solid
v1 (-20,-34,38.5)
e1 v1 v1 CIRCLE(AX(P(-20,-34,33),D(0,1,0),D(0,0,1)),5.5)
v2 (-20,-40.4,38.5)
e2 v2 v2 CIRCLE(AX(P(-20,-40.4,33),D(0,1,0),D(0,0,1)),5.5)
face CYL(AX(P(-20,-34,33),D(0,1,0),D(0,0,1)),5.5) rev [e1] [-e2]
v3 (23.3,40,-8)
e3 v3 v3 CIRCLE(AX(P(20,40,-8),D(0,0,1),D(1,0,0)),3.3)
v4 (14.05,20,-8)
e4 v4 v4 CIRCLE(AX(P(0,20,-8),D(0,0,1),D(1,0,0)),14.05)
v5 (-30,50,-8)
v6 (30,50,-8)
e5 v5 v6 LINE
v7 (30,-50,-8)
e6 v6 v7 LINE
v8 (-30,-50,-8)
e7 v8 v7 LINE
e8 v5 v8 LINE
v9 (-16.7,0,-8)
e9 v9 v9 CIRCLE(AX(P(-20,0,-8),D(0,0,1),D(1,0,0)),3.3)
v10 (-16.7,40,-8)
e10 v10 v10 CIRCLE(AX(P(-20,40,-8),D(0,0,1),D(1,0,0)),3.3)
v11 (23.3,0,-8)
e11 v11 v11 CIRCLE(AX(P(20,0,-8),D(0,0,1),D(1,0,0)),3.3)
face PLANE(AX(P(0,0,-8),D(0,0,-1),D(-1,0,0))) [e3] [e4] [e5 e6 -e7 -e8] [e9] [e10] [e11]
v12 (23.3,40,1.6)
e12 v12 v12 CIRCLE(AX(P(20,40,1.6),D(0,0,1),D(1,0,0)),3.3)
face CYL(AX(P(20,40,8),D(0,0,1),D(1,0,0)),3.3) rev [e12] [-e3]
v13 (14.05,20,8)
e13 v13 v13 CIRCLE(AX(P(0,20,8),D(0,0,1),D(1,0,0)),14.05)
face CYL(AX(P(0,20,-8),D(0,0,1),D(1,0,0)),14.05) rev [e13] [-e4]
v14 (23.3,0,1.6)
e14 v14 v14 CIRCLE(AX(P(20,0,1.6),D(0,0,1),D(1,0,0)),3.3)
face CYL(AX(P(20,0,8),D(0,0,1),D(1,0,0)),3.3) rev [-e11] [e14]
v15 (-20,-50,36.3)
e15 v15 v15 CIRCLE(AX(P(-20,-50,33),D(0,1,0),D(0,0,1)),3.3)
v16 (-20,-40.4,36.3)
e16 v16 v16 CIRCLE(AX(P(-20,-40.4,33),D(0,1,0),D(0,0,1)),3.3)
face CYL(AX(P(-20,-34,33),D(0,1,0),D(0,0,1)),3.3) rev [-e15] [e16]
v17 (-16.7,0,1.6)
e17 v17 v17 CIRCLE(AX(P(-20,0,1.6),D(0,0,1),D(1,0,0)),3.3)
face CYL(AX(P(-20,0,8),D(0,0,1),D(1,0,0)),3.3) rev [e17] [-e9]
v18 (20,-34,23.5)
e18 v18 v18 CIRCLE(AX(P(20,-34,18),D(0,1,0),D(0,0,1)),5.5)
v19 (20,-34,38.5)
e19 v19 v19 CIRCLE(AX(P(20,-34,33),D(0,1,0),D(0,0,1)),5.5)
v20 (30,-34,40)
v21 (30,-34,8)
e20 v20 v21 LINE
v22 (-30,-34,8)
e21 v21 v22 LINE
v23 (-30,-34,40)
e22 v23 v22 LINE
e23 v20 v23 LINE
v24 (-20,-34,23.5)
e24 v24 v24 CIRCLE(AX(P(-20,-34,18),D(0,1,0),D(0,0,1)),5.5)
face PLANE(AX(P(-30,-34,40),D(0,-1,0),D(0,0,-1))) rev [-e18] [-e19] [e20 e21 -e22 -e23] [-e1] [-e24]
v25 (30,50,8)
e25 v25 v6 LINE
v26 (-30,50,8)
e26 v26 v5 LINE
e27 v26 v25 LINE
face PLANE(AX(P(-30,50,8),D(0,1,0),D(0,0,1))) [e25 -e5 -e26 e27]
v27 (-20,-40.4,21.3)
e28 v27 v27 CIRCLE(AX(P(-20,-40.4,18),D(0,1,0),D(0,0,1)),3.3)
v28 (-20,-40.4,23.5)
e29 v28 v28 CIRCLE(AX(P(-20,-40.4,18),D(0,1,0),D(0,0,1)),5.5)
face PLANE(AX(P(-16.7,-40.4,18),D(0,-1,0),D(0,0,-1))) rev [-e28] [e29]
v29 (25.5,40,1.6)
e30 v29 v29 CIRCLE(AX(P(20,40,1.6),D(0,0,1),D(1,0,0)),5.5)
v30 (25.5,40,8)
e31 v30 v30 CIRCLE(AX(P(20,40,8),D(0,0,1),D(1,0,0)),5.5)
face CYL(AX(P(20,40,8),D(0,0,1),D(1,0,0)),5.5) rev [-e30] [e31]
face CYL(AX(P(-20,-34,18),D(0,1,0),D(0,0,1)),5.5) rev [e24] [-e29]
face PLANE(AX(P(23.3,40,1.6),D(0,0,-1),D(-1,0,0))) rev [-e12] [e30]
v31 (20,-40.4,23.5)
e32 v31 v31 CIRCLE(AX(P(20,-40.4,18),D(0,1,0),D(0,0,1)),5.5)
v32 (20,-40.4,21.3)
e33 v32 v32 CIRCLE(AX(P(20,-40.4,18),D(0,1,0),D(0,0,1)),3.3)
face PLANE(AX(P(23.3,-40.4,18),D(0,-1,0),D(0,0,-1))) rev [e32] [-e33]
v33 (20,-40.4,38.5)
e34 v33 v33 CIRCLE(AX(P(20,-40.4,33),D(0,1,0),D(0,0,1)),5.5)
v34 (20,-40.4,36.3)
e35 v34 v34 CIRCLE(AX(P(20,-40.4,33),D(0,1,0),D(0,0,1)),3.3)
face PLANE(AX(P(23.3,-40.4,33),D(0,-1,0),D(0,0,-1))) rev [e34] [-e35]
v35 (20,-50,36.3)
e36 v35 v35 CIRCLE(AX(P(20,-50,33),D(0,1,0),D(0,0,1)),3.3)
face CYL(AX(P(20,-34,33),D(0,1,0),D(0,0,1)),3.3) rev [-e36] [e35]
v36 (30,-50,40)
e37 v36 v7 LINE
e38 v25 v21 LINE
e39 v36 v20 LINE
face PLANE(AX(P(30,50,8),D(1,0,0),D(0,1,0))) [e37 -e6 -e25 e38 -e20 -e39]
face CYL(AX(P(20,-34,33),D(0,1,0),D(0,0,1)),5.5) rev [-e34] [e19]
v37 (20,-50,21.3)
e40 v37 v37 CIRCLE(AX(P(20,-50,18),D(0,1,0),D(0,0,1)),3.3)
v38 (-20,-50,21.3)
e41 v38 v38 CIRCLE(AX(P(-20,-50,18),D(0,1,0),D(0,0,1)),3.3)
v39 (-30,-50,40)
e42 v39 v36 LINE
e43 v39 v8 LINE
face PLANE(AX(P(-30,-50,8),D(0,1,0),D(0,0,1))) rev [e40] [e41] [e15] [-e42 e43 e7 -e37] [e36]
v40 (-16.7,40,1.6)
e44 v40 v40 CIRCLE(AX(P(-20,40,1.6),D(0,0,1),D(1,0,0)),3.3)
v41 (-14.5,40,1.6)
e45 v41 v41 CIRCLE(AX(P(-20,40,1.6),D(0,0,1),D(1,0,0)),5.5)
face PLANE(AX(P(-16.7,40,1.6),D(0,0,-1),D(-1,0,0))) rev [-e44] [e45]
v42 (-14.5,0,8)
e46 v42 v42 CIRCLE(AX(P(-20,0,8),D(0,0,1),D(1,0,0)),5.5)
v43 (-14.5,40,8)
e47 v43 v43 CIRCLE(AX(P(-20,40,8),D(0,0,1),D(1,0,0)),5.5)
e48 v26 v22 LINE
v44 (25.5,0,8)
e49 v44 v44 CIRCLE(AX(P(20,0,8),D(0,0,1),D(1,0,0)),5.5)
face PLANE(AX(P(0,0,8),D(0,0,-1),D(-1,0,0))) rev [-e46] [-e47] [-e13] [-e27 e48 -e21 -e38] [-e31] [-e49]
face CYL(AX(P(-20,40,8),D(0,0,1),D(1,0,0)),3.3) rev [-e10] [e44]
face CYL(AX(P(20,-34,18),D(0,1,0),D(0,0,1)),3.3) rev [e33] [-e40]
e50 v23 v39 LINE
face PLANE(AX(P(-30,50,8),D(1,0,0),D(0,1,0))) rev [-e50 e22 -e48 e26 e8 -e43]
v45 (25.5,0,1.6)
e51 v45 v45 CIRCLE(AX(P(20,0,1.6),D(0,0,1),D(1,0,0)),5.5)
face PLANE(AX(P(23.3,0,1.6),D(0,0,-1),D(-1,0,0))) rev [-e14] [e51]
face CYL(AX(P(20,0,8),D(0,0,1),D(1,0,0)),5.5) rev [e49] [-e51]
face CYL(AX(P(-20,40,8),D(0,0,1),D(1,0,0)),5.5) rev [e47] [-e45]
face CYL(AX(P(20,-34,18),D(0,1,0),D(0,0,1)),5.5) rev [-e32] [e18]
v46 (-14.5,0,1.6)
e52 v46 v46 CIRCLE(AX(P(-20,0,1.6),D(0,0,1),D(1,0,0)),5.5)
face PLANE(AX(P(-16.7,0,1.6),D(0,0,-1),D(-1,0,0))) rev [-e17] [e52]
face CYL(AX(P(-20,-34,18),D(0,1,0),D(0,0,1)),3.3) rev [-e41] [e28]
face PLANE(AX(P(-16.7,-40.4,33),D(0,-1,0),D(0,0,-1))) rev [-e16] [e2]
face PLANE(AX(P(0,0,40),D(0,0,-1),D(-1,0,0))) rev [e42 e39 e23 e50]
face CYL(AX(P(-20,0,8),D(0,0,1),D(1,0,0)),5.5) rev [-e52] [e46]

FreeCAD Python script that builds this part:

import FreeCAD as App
import Part
import Sketcher


def add_polygon(sketch, points):
    """Adds a closed chain of lines whose ends are joined by coincident constraints."""
    first, n = sketch.GeometryCount, len(points)
    for a, b in zip(points, points[1:] + points[:1]):
        sketch.addGeometry(Part.LineSegment(App.Vector(*a, 0), App.Vector(*b, 0)), False)
    for i in range(n):
        sketch.addConstraint(Sketcher.Constraint("Coincident", first + i, 2, first + (i + 1) % n, 1))

doc = App.newDocument("Part")
body = doc.addObject("PartDesign::Body", "Body")

# Sketch on XY plane
sketch1 = body.newObject("Sketcher::SketchObject", "Sketch")
sketch1.AttachmentSupport = (doc.getObject("XY_Plane"), [""])
sketch1.MapMode = "FlatFace"
add_polygon(sketch1, [(-30, 50), (-30, -50), (30, -50), (30, 50)])  # lines 0-3
sketch1.addConstraint([
    Sketcher.Constraint("Vertical", 0),
    Sketcher.Constraint("Horizontal", 1),
    Sketcher.Constraint("Vertical", 2),
    Sketcher.Constraint("Horizontal", 3),
    Sketcher.Constraint("Symmetric", 0, 2, 2, 2, -1, 1),
    Sketcher.Constraint("DistanceX", 1, 1, 1, 2, 60.0),
    Sketcher.Constraint("DistanceY", 0, 2, 0, 1, 100.0),
])
pad1 = body.newObject("PartDesign::Pad", "Pad")
pad1.Profile = sketch1
pad1.Length = 16
pad1.Midplane = True

# Sketch on XY plane
sketch2 = body.newObject("Sketcher::SketchObject", "Sketch001")
sketch2.AttachmentSupport = (doc.getObject("XY_Plane"), [""])
sketch2.MapMode = "FlatFace"
sketch2.AttachmentOffset = App.Placement(App.Vector(0, 0, 8), App.Rotation())
sketch2.addGeometry([
    Part.Circle(App.Vector(-20, 40, 0), App.Vector(0, 0, 1), 3.3),
    Part.Circle(App.Vector(20, 40, 0), App.Vector(0, 0, 1), 3.3),
    Part.Circle(App.Vector(20, 0, 0), App.Vector(0, 0, 1), 3.3),
    Part.Circle(App.Vector(-20, 0, 0), App.Vector(0, 0, 1), 3.3),
], False)
sketch2.addConstraint([
    Sketcher.Constraint("Equal", 0, 1),
    Sketcher.Constraint("Equal", 1, 2),
    Sketcher.Constraint("Equal", 2, 3),
    Sketcher.Constraint("Symmetric", 2, 3, 3, 3, -1, 1),
    Sketcher.Constraint("Symmetric", 0, 3, 1, 3, -2),
    Sketcher.Constraint("PointOnObject", 2, 3, -1),
    Sketcher.Constraint("Vertical", 1, 3, 2, 3),
    Sketcher.Constraint("Diameter", 0, 6.6),
    Sketcher.Constraint("DistanceX", 0, 3, -1, 1, 20.0),
    Sketcher.Constraint("DistanceY", -1, 1, 0, 3, 40.0),
])
doc.recompute()
hole = body.newObject("PartDesign::Hole", "Hole")
hole.Profile = sketch2
hole.ThreadType = "None"
hole.Diameter = 6.6
hole.DepthType = "ThroughAll"
hole.HoleCutType = "Counterbore"
hole.HoleCutDiameter = 11
hole.HoleCutDepth = 6.4

# Sketch on XY plane
sketch3 = body.newObject("Sketcher::SketchObject", "Sketch002")
sketch3.AttachmentSupport = (doc.getObject("XY_Plane"), [""])
sketch3.MapMode = "FlatFace"
sketch3.AttachmentOffset = App.Placement(App.Vector(0, 0, 8), App.Rotation())
sketch3.addGeometry(Part.Circle(App.Vector(0, 20, 0), App.Vector(0, 0, 1), 14), False)
sketch3.addConstraint([
    Sketcher.Constraint("PointOnObject", 0, 3, -2),
    Sketcher.Constraint("Diameter", 0, 28.1),
    Sketcher.Constraint("DistanceY", -1, 1, 0, 3, 20.0),
])
pocket1 = body.newObject("PartDesign::Pocket", "Pocket")
pocket1.Profile = sketch3
pocket1.Type = "ThroughAll"

# Sketch on XY plane
sketch4 = body.newObject("Sketcher::SketchObject", "Sketch003")
sketch4.AttachmentSupport = (doc.getObject("XY_Plane"), [""])
sketch4.MapMode = "FlatFace"
sketch4.AttachmentOffset = App.Placement(App.Vector(0, 0, 8), App.Rotation())
add_polygon(sketch4, [(-30, -34), (-30, -50), (30, -50), (30, -34)])  # lines 0-3
sketch4.addConstraint([
    Sketcher.Constraint("Vertical", 0),
    Sketcher.Constraint("Horizontal", 1),
    Sketcher.Constraint("Vertical", 2),
    Sketcher.Constraint("Horizontal", 3),
    Sketcher.Constraint("DistanceX", 1, 1, 1, 2, 60.0),
    Sketcher.Constraint("DistanceY", 0, 2, 0, 1, 16.0),
    Sketcher.Constraint("DistanceX", 0, 2, -1, 1, 30.0),
    Sketcher.Constraint("DistanceY", 0, 2, -1, 1, 50.0),
])
pad2 = body.newObject("PartDesign::Pad", "Pad001")
pad2.Profile = sketch4
pad2.Length = 32

# Sketch on XZ plane
sketch5 = body.newObject("Sketcher::SketchObject", "Sketch004")
sketch5.AttachmentSupport = (doc.getObject("XZ_Plane"), [""])
sketch5.MapMode = "FlatFace"
sketch5.AttachmentOffset = App.Placement(App.Vector(0, 0, 34), App.Rotation())
sketch5.addGeometry([
    Part.Circle(App.Vector(-20, 18, 0), App.Vector(0, 0, 1), 3.3),
    Part.Circle(App.Vector(20, 18, 0), App.Vector(0, 0, 1), 3.3),
    Part.Circle(App.Vector(20, 33, 0), App.Vector(0, 0, 1), 3.3),
    Part.Circle(App.Vector(-20, 33, 0), App.Vector(0, 0, 1), 3.3),
], False)
sketch5.addConstraint([
    Sketcher.Constraint("Equal", 0, 1),
    Sketcher.Constraint("Equal", 1, 2),
    Sketcher.Constraint("Equal", 2, 3),
    Sketcher.Constraint("Symmetric", 0, 3, 1, 3, -2),
    Sketcher.Constraint("Symmetric", 2, 3, 3, 3, -2),
    Sketcher.Constraint("Vertical", 1, 3, 2, 3),
    Sketcher.Constraint("Diameter", 0, 6.6),
    Sketcher.Constraint("DistanceX", 0, 3, -1, 1, 20.0),
    Sketcher.Constraint("DistanceY", -1, 1, 0, 3, 18.0),
    Sketcher.Constraint("DistanceY", -1, 1, 2, 3, 33.0),
])
doc.recompute()
hole2 = body.newObject("PartDesign::Hole", "Hole001")
hole2.Profile = sketch5
hole2.ThreadType = "None"
hole2.Diameter = 6.6
hole2.DepthType = "ThroughAll"
hole2.HoleCutType = "Counterbore"
hole2.HoleCutDiameter = 11
hole2.HoleCutDepth = 6.4
hole2.Reversed = True

doc.recompute()
